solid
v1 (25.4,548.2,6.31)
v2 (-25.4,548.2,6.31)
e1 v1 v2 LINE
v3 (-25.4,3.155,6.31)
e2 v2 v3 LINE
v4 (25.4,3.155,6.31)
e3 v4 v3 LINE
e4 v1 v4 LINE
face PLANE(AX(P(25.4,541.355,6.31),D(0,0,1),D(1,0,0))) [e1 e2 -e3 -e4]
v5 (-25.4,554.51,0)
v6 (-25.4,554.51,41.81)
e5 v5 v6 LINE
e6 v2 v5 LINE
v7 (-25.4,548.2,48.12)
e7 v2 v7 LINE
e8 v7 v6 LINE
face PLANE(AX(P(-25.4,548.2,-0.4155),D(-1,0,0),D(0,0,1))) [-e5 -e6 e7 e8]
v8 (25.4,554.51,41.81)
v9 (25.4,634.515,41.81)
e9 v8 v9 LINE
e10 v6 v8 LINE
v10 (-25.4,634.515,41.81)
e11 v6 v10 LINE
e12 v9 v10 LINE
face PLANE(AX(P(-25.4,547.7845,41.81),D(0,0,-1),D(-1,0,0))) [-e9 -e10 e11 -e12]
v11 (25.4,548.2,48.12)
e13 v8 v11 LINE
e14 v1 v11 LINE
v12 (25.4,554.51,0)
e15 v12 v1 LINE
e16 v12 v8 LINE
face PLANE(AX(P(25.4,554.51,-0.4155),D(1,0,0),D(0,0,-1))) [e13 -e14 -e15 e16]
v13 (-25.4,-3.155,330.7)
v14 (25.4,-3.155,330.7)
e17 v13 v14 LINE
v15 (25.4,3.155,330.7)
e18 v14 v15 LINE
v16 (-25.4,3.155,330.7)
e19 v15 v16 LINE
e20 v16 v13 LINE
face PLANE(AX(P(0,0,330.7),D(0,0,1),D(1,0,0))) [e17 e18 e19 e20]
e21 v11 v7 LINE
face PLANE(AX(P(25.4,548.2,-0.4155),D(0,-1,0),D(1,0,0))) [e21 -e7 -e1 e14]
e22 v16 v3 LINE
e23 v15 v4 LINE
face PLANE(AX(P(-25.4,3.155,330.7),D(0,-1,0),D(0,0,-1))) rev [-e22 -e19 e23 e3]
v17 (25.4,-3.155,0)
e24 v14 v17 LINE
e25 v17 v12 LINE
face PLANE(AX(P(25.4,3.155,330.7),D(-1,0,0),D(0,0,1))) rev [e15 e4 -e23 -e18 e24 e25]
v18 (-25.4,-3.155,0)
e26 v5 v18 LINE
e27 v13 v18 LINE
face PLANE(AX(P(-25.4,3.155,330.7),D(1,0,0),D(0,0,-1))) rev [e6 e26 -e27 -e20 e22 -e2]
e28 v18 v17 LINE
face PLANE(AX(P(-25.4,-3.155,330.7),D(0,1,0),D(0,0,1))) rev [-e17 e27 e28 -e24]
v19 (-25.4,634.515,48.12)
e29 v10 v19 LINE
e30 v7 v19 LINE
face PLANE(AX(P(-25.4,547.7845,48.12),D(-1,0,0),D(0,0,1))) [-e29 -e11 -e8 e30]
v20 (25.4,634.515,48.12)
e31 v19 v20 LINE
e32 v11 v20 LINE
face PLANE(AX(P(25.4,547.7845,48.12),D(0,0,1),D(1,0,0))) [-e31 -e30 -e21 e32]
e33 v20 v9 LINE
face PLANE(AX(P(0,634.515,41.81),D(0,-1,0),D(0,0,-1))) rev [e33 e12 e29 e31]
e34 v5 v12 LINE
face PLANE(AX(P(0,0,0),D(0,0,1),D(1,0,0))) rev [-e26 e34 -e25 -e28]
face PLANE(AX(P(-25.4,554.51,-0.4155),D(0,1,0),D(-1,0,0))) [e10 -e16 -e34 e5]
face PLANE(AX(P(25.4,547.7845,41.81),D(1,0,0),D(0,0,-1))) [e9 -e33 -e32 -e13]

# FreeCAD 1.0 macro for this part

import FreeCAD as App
import Part
import Sketcher

V = App.Vector


def add_polygon(sketch, points):
    """Adds a closed chain of lines whose ends are joined by coincident constraints."""
    first, n = sketch.GeometryCount, len(points)
    for a, b in zip(points, points[1:] + points[:1]):
        sketch.addGeometry(Part.LineSegment(App.Vector(*a, 0), App.Vector(*b, 0)), False)
    for i in range(n):
        sketch.addConstraint(Sketcher.Constraint("Coincident", first + i, 2, first + (i + 1) % n, 1))

doc = App.newDocument("Part")
params = doc.addObject("Spreadsheet::Sheet", "Params")
for row, (alias, value) in enumerate([
    ("sketch1_width", "50.8 mm"),
    ("sketch1_height", "6.31 mm"),
    ("pad1_length", "330.7 mm"),
    ("sketch2_width", "50.8 mm"),
    ("sketch2_height", "6.31 mm"),
    ("pad2_length", "544.51 mm"),
    ("sketch3_width", "50.8 mm"),
    ("sketch3_height", "6.31 mm"),
    ("sketch4_width", "10 mm"),
    ("sketch4_width2", "83.16 mm"),
    ("sketch4_height", "41.81 mm"),
], start=1):
    params.set(f"A{row}", alias)
    params.set(f"B{row}", "=" + value)
    params.setAlias(f"B{row}", alias)

body = doc.addObject("PartDesign::Body", "Body")

sketch1 = body.newObject("Sketcher::SketchObject", "Sketch")
sketch1.AttachmentSupport = (doc.getObject("XY_Plane"), [""])
sketch1.MapMode = "FlatFace"
add_polygon(sketch1, [(-25, 3), (-25, -3), (25, -3), (25, 3)])
sketch1.addConstraint(Sketcher.Constraint("Vertical", 0))
sketch1.addConstraint(Sketcher.Constraint("Horizontal", 1))
sketch1.addConstraint(Sketcher.Constraint("Vertical", 2))
sketch1.addConstraint(Sketcher.Constraint("Horizontal", 3))
sketch1.addConstraint(Sketcher.Constraint("Symmetric", 0, 2, 2, 2, -1, 1))
sketch1.addConstraint(Sketcher.Constraint("DistanceX", 1, 1, 1, 2, 50.8))
sketch1.addConstraint(Sketcher.Constraint("DistanceY", 0, 2, 0, 1, 6.31))
sketch1.setExpression("Constraints[9]", "Params.sketch1_width")
sketch1.setExpression("Constraints[10]", "Params.sketch1_height")
pad1 = body.newObject("PartDesign::Pad", "Pad")
pad1.Profile = sketch1
pad1.setExpression("Length", "Params.pad1_length")

sketch2 = body.newObject("Sketcher::SketchObject", "Sketch001")
sketch2.AttachmentSupport = (doc.getObject("XZ_Plane"), [""])
sketch2.MapMode = "FlatFace"
sketch2.AttachmentOffset = App.Placement(V(0, 0, 3.155), App.Rotation())
add_polygon(sketch2, [(-25, 6), (-25, 0), (25, 0), (25, 6)])
sketch2.addConstraint(Sketcher.Constraint("Vertical", 0))
sketch2.addConstraint(Sketcher.Constraint("Horizontal", 1))
sketch2.addConstraint(Sketcher.Constraint("Vertical", 2))
sketch2.addConstraint(Sketcher.Constraint("Horizontal", 3))
sketch2.addConstraint(Sketcher.Constraint("Symmetric", 0, 2, 1, 2, -1, 1))
sketch2.addConstraint(Sketcher.Constraint("DistanceX", 1, 1, 1, 2, 50.8))
sketch2.addConstraint(Sketcher.Constraint("DistanceY", 0, 2, 0, 1, 6.31))
sketch2.setExpression("Constraints[9]", "Params.sketch2_width")
sketch2.setExpression("Constraints[10]", "Params.sketch2_height")
pad2 = body.newObject("PartDesign::Pad", "Pad001")
pad2.Profile = sketch2
pad2.setExpression("Length", "Params.pad2_length")
pad2.Reversed = True

sketch3 = body.newObject("Sketcher::SketchObject", "Sketch002")
sketch3.AttachmentSupport = (doc.getObject("XZ_Plane"), [""])
sketch3.MapMode = "FlatFace"
sketch3.AttachmentOffset = App.Placement(V(0, 0, -541.355), App.Rotation())
add_polygon(sketch3, [(-25, 0), (-25, 6), (25, 6), (25, 0)])
sketch3.addConstraint(Sketcher.Constraint("Vertical", 0))
sketch3.addConstraint(Sketcher.Constraint("Horizontal", 1))
sketch3.addConstraint(Sketcher.Constraint("Vertical", 2))
sketch3.addConstraint(Sketcher.Constraint("Horizontal", 3))
sketch3.addConstraint(Sketcher.Constraint("Symmetric", 2, 2, 3, 2, -1, 1))
sketch3.addConstraint(Sketcher.Constraint("DistanceX", 1, 1, 1, 2, 50.8))
sketch3.addConstraint(Sketcher.Constraint("DistanceY", 0, 1, 0, 2, 6.31))
sketch3.setExpression("Constraints[9]", "Params.sketch3_width")
sketch3.setExpression("Constraints[10]", "Params.sketch3_height")

sketch4 = body.newObject("Sketcher::SketchObject", "Sketch003")
sketch4.AttachmentSupport = (doc.getObject("YZ_Plane"), [""])
sketch4.MapMode = "FlatFace"
sketch4.addGeometry(Part.LineSegment(V(541, 3, 0), V(551, 3, 0)), False)
sketch4.addGeometry(Part.LineSegment(V(551, 3, 0), V(551, 45, 0)), False)
sketch4.addGeometry(Part.LineSegment(V(551, 45, 0), V(635, 45, 0)), False)
sketch4.addConstraint(Sketcher.Constraint("Coincident", 0, 2, 1, 1))
sketch4.addConstraint(Sketcher.Constraint("Coincident", 1, 2, 2, 1))
sketch4.addConstraint(Sketcher.Constraint("Horizontal", 0))
sketch4.addConstraint(Sketcher.Constraint("Vertical", 1))
sketch4.addConstraint(Sketcher.Constraint("Horizontal", 2))
sketch4.addConstraint(Sketcher.Constraint("DistanceX", 0, 1, 0, 2, 10.0))
sketch4.addConstraint(Sketcher.Constraint("DistanceX", 2, 1, 2, 2, 83.16))
sketch4.addConstraint(Sketcher.Constraint("DistanceY", 1, 1, 1, 2, 41.81))
sketch4.addConstraint(Sketcher.Constraint("DistanceX", -1, 1, 0, 1, 541.355))
sketch4.addConstraint(Sketcher.Constraint("DistanceY", -1, 1, 0, 1, 3.155))
sketch4.setExpression("Constraints[5]", "Params.sketch4_width")
sketch4.setExpression("Constraints[6]", "Params.sketch4_width2")
sketch4.setExpression("Constraints[7]", "Params.sketch4_height")
doc.recompute()

additivepipe = body.newObject("PartDesign::AdditivePipe", "AdditivePipe")
additivepipe.Profile = sketch3
additivepipe.Spine = (sketch4, ["Edge1", "Edge2", "Edge3"])
additivepipe.Transition = "Right corner"

doc.recompute()
